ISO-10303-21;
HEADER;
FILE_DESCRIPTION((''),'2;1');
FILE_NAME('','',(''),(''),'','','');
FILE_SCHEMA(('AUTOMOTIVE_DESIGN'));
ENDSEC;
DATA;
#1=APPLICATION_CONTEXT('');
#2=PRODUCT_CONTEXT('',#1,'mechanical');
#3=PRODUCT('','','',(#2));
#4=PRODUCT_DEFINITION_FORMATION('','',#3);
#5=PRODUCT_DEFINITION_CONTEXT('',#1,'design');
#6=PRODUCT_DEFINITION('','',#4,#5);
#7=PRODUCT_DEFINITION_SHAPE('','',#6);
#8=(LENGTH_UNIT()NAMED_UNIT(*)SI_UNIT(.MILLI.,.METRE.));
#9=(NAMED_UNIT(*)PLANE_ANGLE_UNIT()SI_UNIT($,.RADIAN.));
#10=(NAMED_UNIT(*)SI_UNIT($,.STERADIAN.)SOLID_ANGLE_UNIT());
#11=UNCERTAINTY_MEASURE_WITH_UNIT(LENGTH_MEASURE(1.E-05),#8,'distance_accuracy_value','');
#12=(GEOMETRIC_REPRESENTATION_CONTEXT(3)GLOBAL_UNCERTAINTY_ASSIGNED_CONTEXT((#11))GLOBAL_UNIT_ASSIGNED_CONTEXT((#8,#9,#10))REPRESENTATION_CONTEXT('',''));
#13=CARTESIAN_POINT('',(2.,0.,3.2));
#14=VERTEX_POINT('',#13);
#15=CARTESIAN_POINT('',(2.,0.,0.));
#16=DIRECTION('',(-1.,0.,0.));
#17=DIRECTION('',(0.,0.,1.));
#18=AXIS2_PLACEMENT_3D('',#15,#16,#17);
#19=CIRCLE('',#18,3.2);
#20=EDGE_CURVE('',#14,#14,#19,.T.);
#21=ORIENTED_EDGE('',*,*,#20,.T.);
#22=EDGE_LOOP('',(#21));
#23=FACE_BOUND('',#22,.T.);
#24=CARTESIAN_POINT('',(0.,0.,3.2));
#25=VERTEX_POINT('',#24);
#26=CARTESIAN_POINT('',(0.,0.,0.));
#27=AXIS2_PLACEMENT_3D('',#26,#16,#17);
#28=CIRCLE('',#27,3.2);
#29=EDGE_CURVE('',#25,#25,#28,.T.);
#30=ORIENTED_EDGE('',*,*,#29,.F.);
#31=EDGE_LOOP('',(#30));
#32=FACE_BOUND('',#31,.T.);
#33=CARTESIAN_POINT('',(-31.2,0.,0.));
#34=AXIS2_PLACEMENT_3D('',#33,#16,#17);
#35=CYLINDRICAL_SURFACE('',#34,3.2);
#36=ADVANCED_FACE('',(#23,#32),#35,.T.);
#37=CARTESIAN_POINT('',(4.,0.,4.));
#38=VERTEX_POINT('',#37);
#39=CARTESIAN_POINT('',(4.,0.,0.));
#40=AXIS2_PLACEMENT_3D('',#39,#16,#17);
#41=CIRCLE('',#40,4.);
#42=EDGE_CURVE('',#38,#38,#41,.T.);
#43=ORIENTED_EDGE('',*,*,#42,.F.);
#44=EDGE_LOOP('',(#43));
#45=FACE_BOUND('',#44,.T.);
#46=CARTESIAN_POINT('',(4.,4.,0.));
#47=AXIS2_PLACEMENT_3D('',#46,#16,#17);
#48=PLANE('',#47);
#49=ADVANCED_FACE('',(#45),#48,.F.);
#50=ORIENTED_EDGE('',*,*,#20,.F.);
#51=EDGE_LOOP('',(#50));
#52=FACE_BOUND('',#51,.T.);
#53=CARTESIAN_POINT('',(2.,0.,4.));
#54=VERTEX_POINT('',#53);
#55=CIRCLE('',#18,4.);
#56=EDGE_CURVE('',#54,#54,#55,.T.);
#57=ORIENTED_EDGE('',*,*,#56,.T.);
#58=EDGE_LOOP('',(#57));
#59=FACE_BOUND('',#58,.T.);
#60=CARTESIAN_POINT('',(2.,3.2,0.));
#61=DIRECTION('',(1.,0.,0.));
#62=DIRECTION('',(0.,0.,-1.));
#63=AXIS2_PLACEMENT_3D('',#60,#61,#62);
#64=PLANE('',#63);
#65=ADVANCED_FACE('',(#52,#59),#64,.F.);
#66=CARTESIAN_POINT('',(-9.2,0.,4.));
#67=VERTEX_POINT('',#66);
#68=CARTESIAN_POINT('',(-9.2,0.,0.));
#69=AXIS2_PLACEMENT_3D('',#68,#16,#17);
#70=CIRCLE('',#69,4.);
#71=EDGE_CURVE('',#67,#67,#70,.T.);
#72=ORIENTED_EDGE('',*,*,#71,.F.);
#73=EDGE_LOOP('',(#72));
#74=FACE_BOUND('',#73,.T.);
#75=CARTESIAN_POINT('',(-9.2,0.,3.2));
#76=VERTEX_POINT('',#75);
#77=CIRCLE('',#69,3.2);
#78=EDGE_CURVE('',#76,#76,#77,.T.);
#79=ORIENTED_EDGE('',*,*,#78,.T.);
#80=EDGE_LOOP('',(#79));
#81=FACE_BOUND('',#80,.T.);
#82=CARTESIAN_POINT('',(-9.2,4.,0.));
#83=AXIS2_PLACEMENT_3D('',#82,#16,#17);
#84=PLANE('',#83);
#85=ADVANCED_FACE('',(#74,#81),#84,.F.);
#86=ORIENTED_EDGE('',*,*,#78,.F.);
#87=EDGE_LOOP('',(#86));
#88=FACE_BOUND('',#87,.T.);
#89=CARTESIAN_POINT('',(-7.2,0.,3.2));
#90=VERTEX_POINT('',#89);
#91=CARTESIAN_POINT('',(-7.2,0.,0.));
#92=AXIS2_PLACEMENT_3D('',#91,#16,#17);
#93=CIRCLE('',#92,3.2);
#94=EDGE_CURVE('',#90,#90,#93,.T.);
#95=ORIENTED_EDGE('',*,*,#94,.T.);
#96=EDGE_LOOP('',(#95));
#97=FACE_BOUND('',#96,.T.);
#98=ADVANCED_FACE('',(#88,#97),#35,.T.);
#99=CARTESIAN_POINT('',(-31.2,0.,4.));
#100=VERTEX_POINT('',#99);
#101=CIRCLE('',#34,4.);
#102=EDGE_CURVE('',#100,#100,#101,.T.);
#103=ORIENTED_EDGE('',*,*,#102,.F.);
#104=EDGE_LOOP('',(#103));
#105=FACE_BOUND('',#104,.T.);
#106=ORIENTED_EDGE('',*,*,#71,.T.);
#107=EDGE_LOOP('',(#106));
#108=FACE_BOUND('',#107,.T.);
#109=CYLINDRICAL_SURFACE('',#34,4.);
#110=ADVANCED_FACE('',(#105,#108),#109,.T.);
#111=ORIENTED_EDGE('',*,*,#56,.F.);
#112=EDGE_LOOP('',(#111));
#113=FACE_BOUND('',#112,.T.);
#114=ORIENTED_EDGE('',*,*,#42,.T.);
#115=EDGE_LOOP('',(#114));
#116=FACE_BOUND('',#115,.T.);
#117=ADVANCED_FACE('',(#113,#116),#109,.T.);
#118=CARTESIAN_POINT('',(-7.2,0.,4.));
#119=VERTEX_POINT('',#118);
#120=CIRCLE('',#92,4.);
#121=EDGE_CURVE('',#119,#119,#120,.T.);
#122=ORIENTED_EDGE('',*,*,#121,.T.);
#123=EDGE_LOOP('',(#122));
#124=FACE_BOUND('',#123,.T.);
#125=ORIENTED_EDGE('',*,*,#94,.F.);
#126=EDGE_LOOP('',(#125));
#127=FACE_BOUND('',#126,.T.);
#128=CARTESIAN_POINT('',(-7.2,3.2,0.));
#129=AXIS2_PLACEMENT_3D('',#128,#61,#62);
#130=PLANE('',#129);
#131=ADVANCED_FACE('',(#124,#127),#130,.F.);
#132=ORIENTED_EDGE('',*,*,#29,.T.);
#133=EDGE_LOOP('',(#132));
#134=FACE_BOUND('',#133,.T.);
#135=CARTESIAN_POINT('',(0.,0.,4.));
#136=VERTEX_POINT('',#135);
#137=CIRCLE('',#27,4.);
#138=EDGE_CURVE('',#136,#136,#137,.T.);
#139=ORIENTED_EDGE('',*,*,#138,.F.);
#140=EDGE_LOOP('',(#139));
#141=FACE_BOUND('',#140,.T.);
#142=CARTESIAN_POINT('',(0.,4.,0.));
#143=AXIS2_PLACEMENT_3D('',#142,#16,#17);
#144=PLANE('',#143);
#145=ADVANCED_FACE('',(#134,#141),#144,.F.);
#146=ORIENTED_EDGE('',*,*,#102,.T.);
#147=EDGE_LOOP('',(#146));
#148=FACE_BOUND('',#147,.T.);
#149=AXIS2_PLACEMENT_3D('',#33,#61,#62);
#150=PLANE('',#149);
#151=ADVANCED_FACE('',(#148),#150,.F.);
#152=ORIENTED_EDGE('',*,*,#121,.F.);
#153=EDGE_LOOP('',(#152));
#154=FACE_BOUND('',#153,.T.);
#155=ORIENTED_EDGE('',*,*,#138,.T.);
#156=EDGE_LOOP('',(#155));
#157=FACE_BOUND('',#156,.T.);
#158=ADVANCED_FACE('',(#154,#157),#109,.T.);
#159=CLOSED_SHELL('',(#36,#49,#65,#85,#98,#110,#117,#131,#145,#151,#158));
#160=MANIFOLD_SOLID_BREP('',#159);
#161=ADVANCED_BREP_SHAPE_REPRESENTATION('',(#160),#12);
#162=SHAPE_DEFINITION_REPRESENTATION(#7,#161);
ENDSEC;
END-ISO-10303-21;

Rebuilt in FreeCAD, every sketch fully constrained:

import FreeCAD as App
import Part
import Sketcher

doc = App.newDocument("Part")
body = doc.addObject("PartDesign::Body", "Body")

# Sketch on XY plane
sketch1 = doc.addObject("Sketcher::SketchObject", "Sketch")
body.addObject(sketch1)
sketch1.AttachmentSupport = (doc.XY_Plane, [""])
sketch1.MapMode = "FlatFace"
sketch1.addGeometry([
    Part.LineSegment(App.Vector(-31.2, 4, 0), App.Vector(-31.2, 0, 0)),  # 0
    Part.LineSegment(App.Vector(-31.2, 0, 0), App.Vector(4, 0, 0)),  # 1
    Part.LineSegment(App.Vector(4, 0, 0), App.Vector(4, 4, 0)),  # 2
    Part.LineSegment(App.Vector(4, 4, 0), App.Vector(2, 4, 0)),  # 3
    Part.LineSegment(App.Vector(2, 4, 0), App.Vector(2, 3.2, 0)),  # 4
    Part.LineSegment(App.Vector(2, 3.2, 0), App.Vector(0, 3.2, 0)),  # 5
    Part.LineSegment(App.Vector(0, 3.2, 0), App.Vector(0, 4, 0)),  # 6
    Part.LineSegment(App.Vector(0, 4, 0), App.Vector(-7.2, 4, 0)),  # 7
    Part.LineSegment(App.Vector(-7.2, 4, 0), App.Vector(-7.2, 3.2, 0)),  # 8
    Part.LineSegment(App.Vector(-7.2, 3.2, 0), App.Vector(-9.2, 3.2, 0)),  # 9
    Part.LineSegment(App.Vector(-9.2, 3.2, 0), App.Vector(-9.2, 4, 0)),  # 10
    Part.LineSegment(App.Vector(-9.2, 4, 0), App.Vector(-31.2, 4, 0)),  # 11
], False)
sketch1.addConstraint([
    Sketcher.Constraint("Coincident", 0, 2, 1, 1),
    Sketcher.Constraint("Coincident", 1, 2, 2, 1),
    Sketcher.Constraint("Coincident", 2, 2, 3, 1),
    Sketcher.Constraint("Coincident", 3, 2, 4, 1),
    Sketcher.Constraint("Coincident", 4, 2, 5, 1),
    Sketcher.Constraint("Coincident", 5, 2, 6, 1),
    Sketcher.Constraint("Coincident", 6, 2, 7, 1),
    Sketcher.Constraint("Coincident", 7, 2, 8, 1),
    Sketcher.Constraint("Coincident", 8, 2, 9, 1),
    Sketcher.Constraint("Coincident", 9, 2, 10, 1),
    Sketcher.Constraint("Coincident", 10, 2, 11, 1),
    Sketcher.Constraint("Coincident", 11, 2, 0, 1),
    Sketcher.Constraint("Vertical", 0),
    Sketcher.Constraint("Horizontal", 1),
    Sketcher.Constraint("Vertical", 2),
    Sketcher.Constraint("Horizontal", 3),
    Sketcher.Constraint("Vertical", 4),
    Sketcher.Constraint("Horizontal", 5),
    Sketcher.Constraint("Vertical", 6),
    Sketcher.Constraint("Horizontal", 7),
    Sketcher.Constraint("Vertical", 8),
    Sketcher.Constraint("Horizontal", 9),
    Sketcher.Constraint("Vertical", 10),
    Sketcher.Constraint("Horizontal", 11),
    Sketcher.Constraint("PointOnObject", 0, 2, -1),
    Sketcher.Constraint("PointOnObject", 5, 2, -2),
    Sketcher.Constraint("Horizontal", 3, 2, 6, 2),
    Sketcher.Constraint("Horizontal", 5, 2, 8, 2),
    Sketcher.Constraint("Horizontal", 7, 2, 10, 2),
    Sketcher.Constraint("Equal", 3, 5),
    Sketcher.Constraint("Equal", 5, 9),
    Sketcher.Constraint("DistanceX", 3, 2, 3, 1, 2.0),
    Sketcher.Constraint("DistanceX", 11, 2, 11, 1, 22.0),
    Sketcher.Constraint("DistanceY", 0, 2, 0, 1, 4.0),
    Sketcher.Constraint("DistanceX", 1, 1, 1, 2, 35.2),
    Sketcher.Constraint("DistanceY", 4, 2, 4, 1, 0.8),
])
revolution = doc.addObject("PartDesign::Revolution", "Revolution")
body.addObject(revolution)
revolution.Profile = sketch1
revolution.ReferenceAxis = (sketch1, ["H_Axis"])
revolution.Angle = 360

doc.recompute()
